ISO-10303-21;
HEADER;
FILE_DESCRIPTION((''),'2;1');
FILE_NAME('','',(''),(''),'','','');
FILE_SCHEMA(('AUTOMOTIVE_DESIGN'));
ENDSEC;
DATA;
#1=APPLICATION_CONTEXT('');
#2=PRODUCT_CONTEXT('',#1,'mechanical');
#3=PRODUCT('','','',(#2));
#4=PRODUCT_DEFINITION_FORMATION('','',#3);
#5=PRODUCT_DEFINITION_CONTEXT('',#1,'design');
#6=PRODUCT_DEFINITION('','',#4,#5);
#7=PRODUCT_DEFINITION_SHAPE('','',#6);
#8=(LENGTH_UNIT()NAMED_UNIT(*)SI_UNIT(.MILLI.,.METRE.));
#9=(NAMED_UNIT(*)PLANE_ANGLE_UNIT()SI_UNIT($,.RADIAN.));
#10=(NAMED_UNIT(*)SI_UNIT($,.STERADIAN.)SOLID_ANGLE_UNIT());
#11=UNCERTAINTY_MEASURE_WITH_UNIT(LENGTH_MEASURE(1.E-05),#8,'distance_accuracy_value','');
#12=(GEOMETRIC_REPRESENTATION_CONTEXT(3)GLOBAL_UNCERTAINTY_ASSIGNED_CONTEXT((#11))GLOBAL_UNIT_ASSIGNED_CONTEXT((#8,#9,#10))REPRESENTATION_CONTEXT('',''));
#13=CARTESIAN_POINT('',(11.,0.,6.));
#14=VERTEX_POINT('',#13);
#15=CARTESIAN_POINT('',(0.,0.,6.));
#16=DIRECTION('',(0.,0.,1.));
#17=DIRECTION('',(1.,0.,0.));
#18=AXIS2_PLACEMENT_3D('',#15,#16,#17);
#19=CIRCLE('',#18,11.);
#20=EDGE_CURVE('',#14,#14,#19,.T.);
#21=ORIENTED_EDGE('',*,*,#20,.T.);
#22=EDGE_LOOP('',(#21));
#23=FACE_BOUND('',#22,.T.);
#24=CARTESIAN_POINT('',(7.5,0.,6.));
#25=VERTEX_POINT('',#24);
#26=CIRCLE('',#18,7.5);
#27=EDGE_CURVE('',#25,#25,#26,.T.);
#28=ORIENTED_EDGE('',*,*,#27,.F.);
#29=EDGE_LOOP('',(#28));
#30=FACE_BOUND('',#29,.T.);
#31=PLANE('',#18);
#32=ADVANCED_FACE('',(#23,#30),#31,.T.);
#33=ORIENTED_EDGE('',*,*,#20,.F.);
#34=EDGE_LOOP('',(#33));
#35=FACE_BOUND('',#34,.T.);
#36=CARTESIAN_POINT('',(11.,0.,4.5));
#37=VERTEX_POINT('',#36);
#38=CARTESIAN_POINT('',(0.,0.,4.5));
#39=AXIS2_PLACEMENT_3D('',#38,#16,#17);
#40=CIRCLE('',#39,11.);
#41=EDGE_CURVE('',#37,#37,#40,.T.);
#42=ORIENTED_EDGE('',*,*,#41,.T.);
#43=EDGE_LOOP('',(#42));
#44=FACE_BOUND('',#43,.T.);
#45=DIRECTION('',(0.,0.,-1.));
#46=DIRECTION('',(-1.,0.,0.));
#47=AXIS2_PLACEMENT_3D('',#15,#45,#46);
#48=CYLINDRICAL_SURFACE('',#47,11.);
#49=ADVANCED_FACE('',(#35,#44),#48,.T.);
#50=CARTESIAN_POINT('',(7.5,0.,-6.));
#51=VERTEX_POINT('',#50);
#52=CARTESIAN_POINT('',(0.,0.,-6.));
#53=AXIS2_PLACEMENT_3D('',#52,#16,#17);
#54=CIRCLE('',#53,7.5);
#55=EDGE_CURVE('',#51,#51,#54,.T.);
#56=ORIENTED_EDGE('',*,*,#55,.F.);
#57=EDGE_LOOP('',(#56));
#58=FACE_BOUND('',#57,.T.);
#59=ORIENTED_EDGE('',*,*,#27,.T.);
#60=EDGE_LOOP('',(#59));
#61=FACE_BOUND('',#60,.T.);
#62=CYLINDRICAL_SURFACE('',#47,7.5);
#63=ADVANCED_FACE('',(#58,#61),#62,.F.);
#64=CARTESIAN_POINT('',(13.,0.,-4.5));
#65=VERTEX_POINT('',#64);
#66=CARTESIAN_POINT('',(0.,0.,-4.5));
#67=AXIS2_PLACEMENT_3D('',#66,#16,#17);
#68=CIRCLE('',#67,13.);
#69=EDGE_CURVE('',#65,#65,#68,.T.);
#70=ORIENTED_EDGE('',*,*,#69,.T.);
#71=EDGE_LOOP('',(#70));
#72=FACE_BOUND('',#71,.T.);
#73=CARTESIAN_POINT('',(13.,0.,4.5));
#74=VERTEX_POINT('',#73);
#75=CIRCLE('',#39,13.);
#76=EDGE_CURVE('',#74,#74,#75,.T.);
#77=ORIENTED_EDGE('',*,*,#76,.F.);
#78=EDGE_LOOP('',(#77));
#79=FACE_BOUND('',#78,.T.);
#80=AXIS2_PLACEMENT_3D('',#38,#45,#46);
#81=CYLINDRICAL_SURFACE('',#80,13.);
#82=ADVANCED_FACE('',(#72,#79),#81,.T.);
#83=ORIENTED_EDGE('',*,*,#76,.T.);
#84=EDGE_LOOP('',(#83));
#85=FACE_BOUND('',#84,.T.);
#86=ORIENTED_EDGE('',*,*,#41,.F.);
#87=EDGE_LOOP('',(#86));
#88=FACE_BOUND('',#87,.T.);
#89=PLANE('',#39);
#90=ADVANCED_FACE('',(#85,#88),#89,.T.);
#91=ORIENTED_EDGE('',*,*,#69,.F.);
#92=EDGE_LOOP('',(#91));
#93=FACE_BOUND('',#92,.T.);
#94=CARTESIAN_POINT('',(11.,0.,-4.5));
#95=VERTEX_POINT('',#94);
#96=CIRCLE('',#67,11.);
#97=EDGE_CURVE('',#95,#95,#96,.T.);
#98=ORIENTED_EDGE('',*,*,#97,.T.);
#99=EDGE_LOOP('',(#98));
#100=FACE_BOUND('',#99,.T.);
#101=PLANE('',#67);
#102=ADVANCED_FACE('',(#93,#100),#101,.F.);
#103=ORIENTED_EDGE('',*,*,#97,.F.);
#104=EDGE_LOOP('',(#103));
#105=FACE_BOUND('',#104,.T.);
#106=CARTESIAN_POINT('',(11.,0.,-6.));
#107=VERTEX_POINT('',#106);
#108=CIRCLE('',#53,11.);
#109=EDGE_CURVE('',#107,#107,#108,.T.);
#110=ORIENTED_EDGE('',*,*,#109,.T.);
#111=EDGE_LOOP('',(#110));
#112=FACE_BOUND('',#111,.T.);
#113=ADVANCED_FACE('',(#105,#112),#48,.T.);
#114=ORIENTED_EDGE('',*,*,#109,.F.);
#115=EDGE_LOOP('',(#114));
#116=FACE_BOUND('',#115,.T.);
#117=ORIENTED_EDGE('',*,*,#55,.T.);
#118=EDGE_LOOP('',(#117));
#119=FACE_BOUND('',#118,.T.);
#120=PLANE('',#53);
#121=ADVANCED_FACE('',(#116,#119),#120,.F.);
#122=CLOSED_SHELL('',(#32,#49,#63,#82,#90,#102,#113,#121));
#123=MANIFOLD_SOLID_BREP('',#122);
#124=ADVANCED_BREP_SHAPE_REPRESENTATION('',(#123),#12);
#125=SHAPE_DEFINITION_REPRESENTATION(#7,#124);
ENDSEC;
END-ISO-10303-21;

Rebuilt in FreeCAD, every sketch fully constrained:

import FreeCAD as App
import Part
import Sketcher

V = App.Vector

doc = App.newDocument("Part")
params = doc.addObject("Spreadsheet::Sheet", "Params")
for row, (alias, value) in enumerate([
    ("sketch1_diameter", "22 mm"),
    ("sketch1_diameter2", "15 mm"),
    ("pad1_length", "12 mm"),
    ("sketch2_diameter", "26 mm"),
    ("sketch2_diameter2", "15 mm"),
    ("pad2_length", "9 mm"),
], start=1):
    params.set(f"A{row}", alias)
    params.set(f"B{row}", "=" + value)
    params.setAlias(f"B{row}", alias)

body = doc.addObject("PartDesign::Body", "Body")

# Sketch on XY plane
sketch1 = doc.addObject("Sketcher::SketchObject", "Sketch")
body.addObject(sketch1)
sketch1.AttachmentSupport = (doc.XY_Plane, [""])
sketch1.MapMode = "FlatFace"
sketch1.addGeometry([
    Part.Circle(V(0, 0, 0), V(0, 0, 1), 11),
    Part.Circle(V(0, 0, 0), V(0, 0, 1), 8),
], False)
sketch1.addConstraint([
    Sketcher.Constraint("Coincident", 0, 3, -1, 1),
    Sketcher.Constraint("Coincident", 1, 3, -1, 1),
    Sketcher.Constraint("Diameter", 0, 22.0),
    Sketcher.Constraint("Diameter", 1, 15.0),
])
sketch1.setExpression("Constraints[2]", "Params.sketch1_diameter")
sketch1.setExpression("Constraints[3]", "Params.sketch1_diameter2")
pad1 = doc.addObject("PartDesign::Pad", "Pad")
body.addObject(pad1)
pad1.Profile = sketch1
pad1.setExpression("Length", "Params.pad1_length")
pad1.Midplane = True

# Sketch on XY plane
sketch2 = doc.addObject("Sketcher::SketchObject", "Sketch001")
body.addObject(sketch2)
sketch2.AttachmentSupport = (doc.XY_Plane, [""])
sketch2.MapMode = "FlatFace"
sketch2.addGeometry([
    Part.Circle(V(0, 0, 0), V(0, 0, 1), 13),
    Part.Circle(V(0, 0, 0), V(0, 0, 1), 8),
], False)
sketch2.addConstraint([
    Sketcher.Constraint("Coincident", 0, 3, -1, 1),
    Sketcher.Constraint("Coincident", 1, 3, -1, 1),
    Sketcher.Constraint("Diameter", 0, 26.0),
    Sketcher.Constraint("Diameter", 1, 15.0),
])
sketch2.setExpression("Constraints[2]", "Params.sketch2_diameter")
sketch2.setExpression("Constraints[3]", "Params.sketch2_diameter2")
pad2 = doc.addObject("PartDesign::Pad", "Pad001")
body.addObject(pad2)
pad2.Profile = sketch2
pad2.setExpression("Length", "Params.pad2_length")
pad2.Midplane = True

doc.recompute()
